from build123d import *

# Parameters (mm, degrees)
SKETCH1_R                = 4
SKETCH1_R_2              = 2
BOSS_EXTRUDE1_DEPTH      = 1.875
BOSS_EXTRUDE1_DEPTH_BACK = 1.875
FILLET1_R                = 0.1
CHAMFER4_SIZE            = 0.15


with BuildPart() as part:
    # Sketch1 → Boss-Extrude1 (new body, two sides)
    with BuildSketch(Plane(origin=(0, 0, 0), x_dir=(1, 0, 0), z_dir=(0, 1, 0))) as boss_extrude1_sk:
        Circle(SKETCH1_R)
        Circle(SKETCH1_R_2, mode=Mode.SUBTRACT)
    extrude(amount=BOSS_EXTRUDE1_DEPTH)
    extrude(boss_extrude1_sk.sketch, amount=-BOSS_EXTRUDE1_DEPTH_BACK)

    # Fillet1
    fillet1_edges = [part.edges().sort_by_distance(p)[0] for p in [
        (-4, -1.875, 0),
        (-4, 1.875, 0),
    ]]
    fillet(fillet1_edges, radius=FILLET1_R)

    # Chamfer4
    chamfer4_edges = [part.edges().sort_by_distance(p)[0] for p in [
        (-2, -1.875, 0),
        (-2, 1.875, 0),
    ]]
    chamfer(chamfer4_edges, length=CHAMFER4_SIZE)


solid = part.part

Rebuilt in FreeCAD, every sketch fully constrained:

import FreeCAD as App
import Part
import Sketcher

V = App.Vector


def edges_at(feature, points):
    """Names of the edges that pass closest to the given points."""
    edges = feature.Shape.Edges
    near = lambda p: min(range(len(edges)), key=lambda i: edges[i].distToShape(Part.Vertex(*p))[0])
    return sorted({f"Edge{near(p) + 1}" for p in points})

doc = App.newDocument("Part")
body = doc.addObject("PartDesign::Body", "Body")

sketch1 = body.newObject("Sketcher::SketchObject", "Sketch")
sketch1.AttachmentSupport = (doc.getObject("XZ_Plane"), [""])
sketch1.MapMode = "FlatFace"
sketch1.addGeometry([
    Part.Circle(V(0, 0, 0), V(0, 0, 1), 4),
    Part.Circle(V(0, 0, 0), V(0, 0, 1), 2),
], False)
sketch1.addConstraint([
    Sketcher.Constraint("Coincident", 0, 3, -1, 1),
    Sketcher.Constraint("Coincident", 1, 3, -1, 1),
    Sketcher.Constraint("Diameter", 0, 8.0),
    Sketcher.Constraint("Diameter", 1, 4.0),
])
pad1 = body.newObject("PartDesign::Pad", "Pad")
pad1.Profile = sketch1
pad1.Type = "TwoLengths"
pad1.Length = 1.875
pad1.Length2 = 1.875
pad1.Reversed = True
doc.recompute()

fillet = body.newObject("PartDesign::Fillet", "Fillet")
fillet.Base = (pad1, edges_at(pad1, [(-4, -1.875, 0), (-4, 1.875, 0)]))
fillet.Radius = 0.1
doc.recompute()

chamfer = body.newObject("PartDesign::Chamfer", "Chamfer")
chamfer.Base = (fillet, edges_at(fillet, [(-2, -1.875, 0), (-2, 1.875, 0)]))
chamfer.Size = 0.15

doc.recompute()
